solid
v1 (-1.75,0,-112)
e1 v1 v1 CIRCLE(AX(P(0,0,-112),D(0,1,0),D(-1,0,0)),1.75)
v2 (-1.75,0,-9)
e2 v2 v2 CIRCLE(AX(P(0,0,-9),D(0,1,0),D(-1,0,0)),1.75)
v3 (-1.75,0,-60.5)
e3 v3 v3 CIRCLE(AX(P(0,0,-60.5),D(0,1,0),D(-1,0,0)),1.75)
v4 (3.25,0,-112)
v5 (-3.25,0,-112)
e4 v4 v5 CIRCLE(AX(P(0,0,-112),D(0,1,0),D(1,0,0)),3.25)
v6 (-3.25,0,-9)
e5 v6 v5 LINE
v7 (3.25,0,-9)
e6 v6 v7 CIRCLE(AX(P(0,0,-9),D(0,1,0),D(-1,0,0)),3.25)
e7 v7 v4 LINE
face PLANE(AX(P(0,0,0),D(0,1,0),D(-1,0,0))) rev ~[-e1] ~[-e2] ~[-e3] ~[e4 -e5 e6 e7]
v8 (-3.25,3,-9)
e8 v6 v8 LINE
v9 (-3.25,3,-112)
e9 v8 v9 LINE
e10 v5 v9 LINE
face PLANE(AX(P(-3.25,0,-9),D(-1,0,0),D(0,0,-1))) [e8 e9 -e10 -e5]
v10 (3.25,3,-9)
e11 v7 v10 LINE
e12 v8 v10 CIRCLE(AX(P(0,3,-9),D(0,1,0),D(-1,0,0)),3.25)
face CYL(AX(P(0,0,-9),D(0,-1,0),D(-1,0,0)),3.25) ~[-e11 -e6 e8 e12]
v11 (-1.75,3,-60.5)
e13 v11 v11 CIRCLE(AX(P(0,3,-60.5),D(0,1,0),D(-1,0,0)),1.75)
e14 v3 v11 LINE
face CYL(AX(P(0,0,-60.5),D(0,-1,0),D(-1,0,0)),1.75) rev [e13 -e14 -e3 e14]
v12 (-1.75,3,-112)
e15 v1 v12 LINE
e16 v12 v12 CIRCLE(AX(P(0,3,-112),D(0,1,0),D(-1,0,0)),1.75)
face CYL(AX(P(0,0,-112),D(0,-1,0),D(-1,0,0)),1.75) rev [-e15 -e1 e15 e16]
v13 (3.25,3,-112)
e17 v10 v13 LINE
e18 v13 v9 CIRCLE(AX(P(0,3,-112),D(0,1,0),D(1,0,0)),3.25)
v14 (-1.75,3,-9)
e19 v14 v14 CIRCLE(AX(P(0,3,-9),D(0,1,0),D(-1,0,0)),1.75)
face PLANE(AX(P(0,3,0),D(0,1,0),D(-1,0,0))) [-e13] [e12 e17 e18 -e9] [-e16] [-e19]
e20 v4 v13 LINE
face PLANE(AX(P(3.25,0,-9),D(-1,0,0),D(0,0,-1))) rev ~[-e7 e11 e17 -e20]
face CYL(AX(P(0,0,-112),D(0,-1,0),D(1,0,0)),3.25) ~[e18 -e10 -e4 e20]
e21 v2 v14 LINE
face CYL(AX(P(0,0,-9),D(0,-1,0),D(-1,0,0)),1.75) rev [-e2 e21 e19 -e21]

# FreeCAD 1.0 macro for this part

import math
import FreeCAD as App
import Part
import Sketcher
Q = App.Units.Quantity

doc = App.newDocument("Part")
body = doc.addObject("PartDesign::Body", "Body")

# Sketch on XZ plane
sketch1 = doc.addObject("Sketcher::SketchObject", "Sketch")
body.addObject(sketch1)
sketch1.AttachmentSupport = (doc.XZ_Plane, [""])
sketch1.MapMode = "FlatFace"
sketch1.addGeometry(Part.LineSegment(App.Vector(-3.2, -112, 0), App.Vector(-3.2, -9, 0)), False)
sketch1.addGeometry(Part.ArcOfCircle(Part.Circle(App.Vector(0, -9, 0), App.Vector(0, 0, 1), 3.2), math.radians(0), math.radians(180)), False)
sketch1.addGeometry(Part.LineSegment(App.Vector(3.2, -9, 0), App.Vector(3.2, -112, 0)), False)
sketch1.addGeometry(Part.ArcOfCircle(Part.Circle(App.Vector(0, -112, 0), App.Vector(0, 0, 1), 3.2), math.radians(180), math.radians(360)), False)
sketch1.addGeometry(Part.Circle(App.Vector(0, -112, 0), App.Vector(0, 0, 1), 1.8), False)
sketch1.addGeometry(Part.Circle(App.Vector(0, -60.5, 0), App.Vector(0, 0, 1), 1.8), False)
sketch1.addGeometry(Part.Circle(App.Vector(0, -9, 0), App.Vector(0, 0, 1), 1.8), False)
sketch1.addConstraint(Sketcher.Constraint("Tangent", 0, 2, 1, 2))
sketch1.addConstraint(Sketcher.Constraint("Tangent", 1, 1, 2, 1))
sketch1.addConstraint(Sketcher.Constraint("Tangent", 2, 2, 3, 2))
sketch1.addConstraint(Sketcher.Constraint("Tangent", 3, 1, 0, 1))
sketch1.addConstraint(Sketcher.Constraint("Vertical", 0))
sketch1.addConstraint(Sketcher.Constraint("Vertical", 2))
sketch1.addConstraint(Sketcher.Constraint("Coincident", 4, 3, 3, 3))
sketch1.addConstraint(Sketcher.Constraint("Coincident", 6, 3, 1, 3))
sketch1.addConstraint(Sketcher.Constraint("Equal", 4, 5))
sketch1.addConstraint(Sketcher.Constraint("Equal", 5, 6))
sketch1.addConstraint(Sketcher.Constraint("PointOnObject", 1, 3, -2))
sketch1.addConstraint(Sketcher.Constraint("PointOnObject", 5, 3, -2))
sketch1.addConstraint(Sketcher.Constraint("Diameter", 4, Q("3.5 mm")))
sketch1.addConstraint(Sketcher.Constraint("Radius", 1, Q("3.25 mm")))
sketch1.addConstraint(Sketcher.Constraint("DistanceY", 5, 3, 1, 3, Q("51.5 mm")))
sketch1.addConstraint(Sketcher.Constraint("DistanceY", 3, 3, 5, 3, Q("51.5 mm")))
sketch1.addConstraint(Sketcher.Constraint("DistanceY", 1, 3, -1, 1, Q("9 mm")))
pad1 = doc.addObject("PartDesign::Pad", "Pad")
body.addObject(pad1)
pad1.Profile = sketch1
pad1.Length = 3
pad1.Reversed = True

doc.recompute()
